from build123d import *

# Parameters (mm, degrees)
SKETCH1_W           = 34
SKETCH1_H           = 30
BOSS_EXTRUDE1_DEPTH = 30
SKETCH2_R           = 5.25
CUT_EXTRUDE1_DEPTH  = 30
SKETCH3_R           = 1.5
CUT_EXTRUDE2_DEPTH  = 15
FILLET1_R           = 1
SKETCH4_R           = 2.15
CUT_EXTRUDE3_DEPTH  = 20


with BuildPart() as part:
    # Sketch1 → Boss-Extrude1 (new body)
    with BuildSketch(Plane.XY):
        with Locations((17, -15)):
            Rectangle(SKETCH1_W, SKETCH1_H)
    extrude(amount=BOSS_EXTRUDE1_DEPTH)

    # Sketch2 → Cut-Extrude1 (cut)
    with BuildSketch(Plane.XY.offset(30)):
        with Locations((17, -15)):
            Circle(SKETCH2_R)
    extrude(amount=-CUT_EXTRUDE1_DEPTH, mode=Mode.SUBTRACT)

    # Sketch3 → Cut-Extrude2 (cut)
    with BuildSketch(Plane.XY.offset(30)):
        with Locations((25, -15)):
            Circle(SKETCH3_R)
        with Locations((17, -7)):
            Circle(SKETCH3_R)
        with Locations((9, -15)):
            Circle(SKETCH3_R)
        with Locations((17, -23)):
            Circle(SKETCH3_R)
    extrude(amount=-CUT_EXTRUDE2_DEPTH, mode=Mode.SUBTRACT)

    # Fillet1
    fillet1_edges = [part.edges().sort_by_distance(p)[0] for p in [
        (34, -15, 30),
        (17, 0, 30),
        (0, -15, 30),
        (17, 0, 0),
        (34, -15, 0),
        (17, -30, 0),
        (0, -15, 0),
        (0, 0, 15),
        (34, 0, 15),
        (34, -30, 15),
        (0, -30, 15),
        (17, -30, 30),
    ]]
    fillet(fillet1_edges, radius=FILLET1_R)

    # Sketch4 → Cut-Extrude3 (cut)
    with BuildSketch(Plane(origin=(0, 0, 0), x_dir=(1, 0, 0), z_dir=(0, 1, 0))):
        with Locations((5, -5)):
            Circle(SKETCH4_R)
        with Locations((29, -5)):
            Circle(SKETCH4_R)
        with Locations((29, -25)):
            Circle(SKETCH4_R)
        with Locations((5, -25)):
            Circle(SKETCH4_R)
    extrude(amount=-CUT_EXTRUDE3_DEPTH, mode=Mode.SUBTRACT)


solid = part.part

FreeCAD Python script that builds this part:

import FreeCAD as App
import Part
import Sketcher

V = App.Vector


def edges_at(feature, points):
    """Names of the edges that pass closest to the given points."""
    edges = feature.Shape.Edges
    near = lambda p: min(range(len(edges)), key=lambda i: edges[i].distToShape(Part.Vertex(*p))[0])
    return sorted({f"Edge{near(p) + 1}" for p in points})

doc = App.newDocument("Part")
body = doc.addObject("PartDesign::Body", "Body")

# Sketch on XY plane
sketch1 = body.newObject("Sketcher::SketchObject", "Sketch")
sketch1.AttachmentSupport = (doc.getObject("XY_Plane"), [""])
sketch1.MapMode = "FlatFace"
sketch1.addGeometry([
    Part.LineSegment(V(0, 0, 0), V(0, -30, 0)),
    Part.LineSegment(V(0, -30, 0), V(34, -30, 0)),
    Part.LineSegment(V(34, -30, 0), V(34, 0, 0)),
    Part.LineSegment(V(34, 0, 0), V(0, 0, 0)),
], False)
sketch1.addConstraint([
    Sketcher.Constraint("Coincident", 0, 2, 1, 1),
    Sketcher.Constraint("Coincident", 1, 2, 2, 1),
    Sketcher.Constraint("Coincident", 2, 2, 3, 1),
    Sketcher.Constraint("Coincident", 3, 2, 0, 1),
    Sketcher.Constraint("Vertical", 0),
    Sketcher.Constraint("Horizontal", 1),
    Sketcher.Constraint("Vertical", 2),
    Sketcher.Constraint("Horizontal", 3),
    Sketcher.Constraint("Coincident", 3, 2, -1, 1),
    Sketcher.Constraint("DistanceX", 1, 1, 1, 2, 34.0),
    Sketcher.Constraint("DistanceY", 0, 2, 0, 1, 30.0),
])
pad1 = body.newObject("PartDesign::Pad", "Pad")
pad1.Profile = sketch1
pad1.Length = 30

# Sketch on XY plane
sketch2 = body.newObject("Sketcher::SketchObject", "Sketch001")
sketch2.AttachmentSupport = (doc.getObject("XY_Plane"), [""])
sketch2.MapMode = "FlatFace"
sketch2.AttachmentOffset = App.Placement(V(0, 0, 30), App.Rotation())
sketch2.addGeometry(Part.Circle(V(17, -15, 0), V(0, 0, 1), 5.25), False)
sketch2.addConstraint([
    Sketcher.Constraint("Diameter", 0, 10.5),
    Sketcher.Constraint("DistanceX", -1, 1, 0, 3, 17.0),
    Sketcher.Constraint("DistanceY", 0, 3, -1, 1, 15.0),
])
pocket1 = body.newObject("PartDesign::Pocket", "Pocket")
pocket1.Profile = sketch2
pocket1.Length = 30

# Sketch on XY plane
sketch3 = body.newObject("Sketcher::SketchObject", "Sketch002")
sketch3.AttachmentSupport = (doc.getObject("XY_Plane"), [""])
sketch3.MapMode = "FlatFace"
sketch3.AttachmentOffset = App.Placement(V(0, 0, 30), App.Rotation())
sketch3.addGeometry([
    Part.Circle(V(25, -15, 0), V(0, 0, 1), 1.5),
    Part.Circle(V(17, -7, 0), V(0, 0, 1), 1.5),
    Part.Circle(V(9, -15, 0), V(0, 0, 1), 1.5),
    Part.Circle(V(17, -23, 0), V(0, 0, 1), 1.5),
], False)
sketch3.addConstraint([
    Sketcher.Constraint("Equal", 0, 1),
    Sketcher.Constraint("Equal", 1, 2),
    Sketcher.Constraint("Equal", 2, 3),
    Sketcher.Constraint("Horizontal", 0, 3, 2, 3),
    Sketcher.Constraint("Vertical", 1, 3, 3, 3),
    Sketcher.Constraint("Diameter", 0, 3.0),
    Sketcher.Constraint("DistanceX", -1, 1, 0, 3, 25.0),
    Sketcher.Constraint("DistanceY", 0, 3, -1, 1, 15.0),
    Sketcher.Constraint("DistanceX", -1, 1, 1, 3, 17.0),
    Sketcher.Constraint("DistanceY", 1, 3, -1, 1, 7.0),
    Sketcher.Constraint("DistanceX", -1, 1, 2, 3, 9.0),
    Sketcher.Constraint("DistanceY", 3, 3, -1, 1, 23.0),
])
pocket2 = body.newObject("PartDesign::Pocket", "Pocket001")
pocket2.Profile = sketch3
pocket2.Length = 15
doc.recompute()

fillet = body.newObject("PartDesign::Fillet", "Fillet")
fillet.Base = (pocket2, edges_at(pocket2, [
    (34, -15, 30),
    (17, 0, 30),
    (0, -15, 30),
    (17, 0, 0),
    (34, -15, 0),
    (17, -30, 0),
    (0, -15, 0),
    (0, 0, 15),
    (34, 0, 15),
    (34, -30, 15),
    (0, -30, 15),
    (17, -30, 30),
]))
fillet.Radius = 1

# Sketch on XZ plane
sketch4 = body.newObject("Sketcher::SketchObject", "Sketch003")
sketch4.AttachmentSupport = (doc.getObject("XZ_Plane"), [""])
sketch4.MapMode = "FlatFace"
sketch4.addGeometry([
    Part.Circle(V(5, 5, 0), V(0, 0, 1), 2.15),
    Part.Circle(V(29, 5, 0), V(0, 0, 1), 2.15),
    Part.Circle(V(29, 25, 0), V(0, 0, 1), 2.15),
    Part.Circle(V(5, 25, 0), V(0, 0, 1), 2.15),
], False)
sketch4.addConstraint([
    Sketcher.Constraint("Equal", 0, 1),
    Sketcher.Constraint("Equal", 1, 2),
    Sketcher.Constraint("Equal", 2, 3),
    Sketcher.Constraint("Horizontal", 0, 3, 1, 3),
    Sketcher.Constraint("Horizontal", 2, 3, 3, 3),
    Sketcher.Constraint("Vertical", 1, 3, 2, 3),
    Sketcher.Constraint("Vertical", 0, 3, 3, 3),
    Sketcher.Constraint("Diameter", 0, 4.3),
    Sketcher.Constraint("DistanceX", -1, 1, 0, 3, 5.0),
    Sketcher.Constraint("DistanceY", -1, 1, 0, 3, 5.0),
    Sketcher.Constraint("DistanceX", -1, 1, 1, 3, 29.0),
    Sketcher.Constraint("DistanceY", -1, 1, 2, 3, 25.0),
])
pocket3 = body.newObject("PartDesign::Pocket", "Pocket002")
pocket3.Profile = sketch4
pocket3.Length = 20
pocket3.Reversed = True

doc.recompute()
